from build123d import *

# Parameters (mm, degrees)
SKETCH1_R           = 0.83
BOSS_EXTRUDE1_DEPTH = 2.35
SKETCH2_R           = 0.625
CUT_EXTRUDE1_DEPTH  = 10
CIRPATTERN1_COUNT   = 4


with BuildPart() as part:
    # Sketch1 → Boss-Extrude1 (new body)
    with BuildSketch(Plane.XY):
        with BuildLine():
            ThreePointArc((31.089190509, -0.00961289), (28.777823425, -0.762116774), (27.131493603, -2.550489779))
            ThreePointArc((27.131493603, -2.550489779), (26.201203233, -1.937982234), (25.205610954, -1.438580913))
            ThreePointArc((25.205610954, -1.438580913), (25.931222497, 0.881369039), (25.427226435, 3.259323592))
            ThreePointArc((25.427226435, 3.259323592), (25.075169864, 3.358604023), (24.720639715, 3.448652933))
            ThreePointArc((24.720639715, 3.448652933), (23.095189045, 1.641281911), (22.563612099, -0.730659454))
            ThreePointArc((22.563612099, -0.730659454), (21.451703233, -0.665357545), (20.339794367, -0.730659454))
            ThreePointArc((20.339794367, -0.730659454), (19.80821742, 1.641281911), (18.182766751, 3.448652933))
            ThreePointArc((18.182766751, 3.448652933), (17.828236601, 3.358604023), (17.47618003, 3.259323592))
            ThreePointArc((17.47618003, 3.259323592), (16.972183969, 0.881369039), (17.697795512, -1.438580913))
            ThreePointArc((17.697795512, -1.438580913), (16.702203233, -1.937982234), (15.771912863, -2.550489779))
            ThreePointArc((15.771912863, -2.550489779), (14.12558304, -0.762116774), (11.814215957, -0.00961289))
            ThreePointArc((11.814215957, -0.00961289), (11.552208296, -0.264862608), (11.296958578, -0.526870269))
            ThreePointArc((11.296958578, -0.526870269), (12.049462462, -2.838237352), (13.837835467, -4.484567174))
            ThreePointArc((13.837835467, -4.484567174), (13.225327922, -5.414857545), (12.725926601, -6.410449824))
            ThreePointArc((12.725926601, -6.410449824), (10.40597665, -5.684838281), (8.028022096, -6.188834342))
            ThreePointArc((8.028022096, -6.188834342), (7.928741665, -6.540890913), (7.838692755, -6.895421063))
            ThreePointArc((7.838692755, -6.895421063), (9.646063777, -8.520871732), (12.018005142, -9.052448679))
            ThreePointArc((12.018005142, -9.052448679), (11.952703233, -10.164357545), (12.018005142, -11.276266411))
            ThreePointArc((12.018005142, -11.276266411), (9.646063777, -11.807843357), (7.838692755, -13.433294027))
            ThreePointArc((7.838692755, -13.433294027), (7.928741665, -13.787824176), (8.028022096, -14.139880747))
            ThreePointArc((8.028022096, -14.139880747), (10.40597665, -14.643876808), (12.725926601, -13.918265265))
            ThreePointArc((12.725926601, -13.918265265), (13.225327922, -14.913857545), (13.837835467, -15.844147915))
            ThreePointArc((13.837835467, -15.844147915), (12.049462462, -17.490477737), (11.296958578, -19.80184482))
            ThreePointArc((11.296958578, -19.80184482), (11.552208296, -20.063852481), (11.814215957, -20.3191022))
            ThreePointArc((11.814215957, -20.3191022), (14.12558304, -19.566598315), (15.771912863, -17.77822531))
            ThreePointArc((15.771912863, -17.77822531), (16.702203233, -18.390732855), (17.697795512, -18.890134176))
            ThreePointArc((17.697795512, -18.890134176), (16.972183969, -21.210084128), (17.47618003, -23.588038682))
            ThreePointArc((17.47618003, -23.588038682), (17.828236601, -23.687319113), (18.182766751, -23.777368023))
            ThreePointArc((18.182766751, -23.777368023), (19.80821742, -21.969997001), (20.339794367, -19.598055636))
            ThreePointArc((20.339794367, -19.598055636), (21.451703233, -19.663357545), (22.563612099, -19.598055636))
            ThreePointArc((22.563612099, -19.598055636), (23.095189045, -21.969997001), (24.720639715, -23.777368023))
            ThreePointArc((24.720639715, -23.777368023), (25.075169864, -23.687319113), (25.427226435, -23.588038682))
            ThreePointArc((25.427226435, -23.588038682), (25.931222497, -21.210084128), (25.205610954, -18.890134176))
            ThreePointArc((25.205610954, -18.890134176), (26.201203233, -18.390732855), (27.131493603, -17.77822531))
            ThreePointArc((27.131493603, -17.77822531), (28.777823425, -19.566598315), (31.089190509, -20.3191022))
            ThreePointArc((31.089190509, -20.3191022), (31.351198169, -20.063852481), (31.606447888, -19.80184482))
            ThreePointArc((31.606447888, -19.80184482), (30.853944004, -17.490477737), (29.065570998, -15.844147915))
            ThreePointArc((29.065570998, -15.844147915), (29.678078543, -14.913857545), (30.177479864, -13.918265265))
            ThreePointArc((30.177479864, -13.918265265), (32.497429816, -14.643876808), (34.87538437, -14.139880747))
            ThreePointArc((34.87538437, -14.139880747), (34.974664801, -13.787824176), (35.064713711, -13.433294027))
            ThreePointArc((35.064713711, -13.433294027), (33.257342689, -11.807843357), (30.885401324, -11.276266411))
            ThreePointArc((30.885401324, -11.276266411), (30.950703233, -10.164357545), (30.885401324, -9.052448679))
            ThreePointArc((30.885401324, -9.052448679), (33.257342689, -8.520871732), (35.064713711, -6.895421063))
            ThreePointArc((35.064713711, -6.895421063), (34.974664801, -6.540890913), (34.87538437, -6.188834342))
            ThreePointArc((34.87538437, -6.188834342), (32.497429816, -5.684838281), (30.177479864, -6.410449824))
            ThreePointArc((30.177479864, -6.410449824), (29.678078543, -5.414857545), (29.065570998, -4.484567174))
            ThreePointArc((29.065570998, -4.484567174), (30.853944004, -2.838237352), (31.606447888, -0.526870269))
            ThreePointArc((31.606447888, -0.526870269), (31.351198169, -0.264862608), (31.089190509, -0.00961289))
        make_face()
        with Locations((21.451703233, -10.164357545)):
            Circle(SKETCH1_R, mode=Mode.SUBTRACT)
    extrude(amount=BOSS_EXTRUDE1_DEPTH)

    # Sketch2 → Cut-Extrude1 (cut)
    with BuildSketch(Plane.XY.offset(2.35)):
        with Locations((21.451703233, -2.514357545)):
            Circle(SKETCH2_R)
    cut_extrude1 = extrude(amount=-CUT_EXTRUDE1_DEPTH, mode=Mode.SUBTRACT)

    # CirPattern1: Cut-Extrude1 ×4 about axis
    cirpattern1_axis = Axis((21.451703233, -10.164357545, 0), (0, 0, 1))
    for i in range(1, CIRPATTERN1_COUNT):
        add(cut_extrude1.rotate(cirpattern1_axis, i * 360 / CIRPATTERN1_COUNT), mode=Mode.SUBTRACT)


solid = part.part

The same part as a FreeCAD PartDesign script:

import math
import FreeCAD as App
import Part
import Sketcher

V = App.Vector
Q = App.Units.Quantity

doc = App.newDocument("Part")
body = doc.addObject("PartDesign::Body", "Body")

# Sketch on XY plane
sketch1 = doc.addObject("Sketcher::SketchObject", "Sketch")
body.addObject(sketch1)
sketch1.AttachmentSupport = (doc.XY_Plane, [""])
sketch1.MapMode = "FlatFace"
sketch1.addGeometry(Part.ArcOfCircle(Part.Circle(V(31.4, -4.8, 0), V(0, 0, 1), 4.8), math.radians(93), math.radians(152)), False)
sketch1.addGeometry(Part.ArcOfCircle(Part.Circle(V(21.5, -10.2, 0), V(0, 0, 1), 9.5), math.radians(53.28), math.radians(66.72)), False)
sketch1.addGeometry(Part.ArcOfCircle(Part.Circle(V(21.1, 1.1, 0), V(0, 0, 1), 4.8), math.radians(-32), math.radians(27)), False)
sketch1.addGeometry(Part.ArcOfCircle(Part.Circle(V(21.5, -10.2, 0), V(0, 0, 1), 14), math.radians(73.5), math.radians(76.5)), False)
sketch1.addGeometry(Part.ArcOfCircle(Part.Circle(V(27.4, -0.6, 0), V(0, 0, 1), 4.8), math.radians(123), math.radians(182)), False)
sketch1.addGeometry(Part.ArcOfCircle(Part.Circle(V(21.5, -10.2, 0), V(0, 0, 1), 9.5), math.radians(83.28), math.radians(96.72)), False)
sketch1.addGeometry(Part.ArcOfCircle(Part.Circle(V(15.5, -0.6, 0), V(0, 0, 1), 4.8), math.radians(-2), math.radians(57)), False)
sketch1.addGeometry(Part.ArcOfCircle(Part.Circle(V(21.5, -10.2, 0), V(0, 0, 1), 14), math.radians(103.5), math.radians(106.5)), False)
sketch1.addGeometry(Part.ArcOfCircle(Part.Circle(V(21.8, 1.1, 0), V(0, 0, 1), 4.8), math.radians(153), math.radians(212)), False)
sketch1.addGeometry(Part.ArcOfCircle(Part.Circle(V(21.5, -10.2, 0), V(0, 0, 1), 9.5), math.radians(113.28), math.radians(126.72)), False)
sketch1.addGeometry(Part.ArcOfCircle(Part.Circle(V(11.5, -4.8, 0), V(0, 0, 1), 4.8), math.radians(28), math.radians(87)), False)
sketch1.addGeometry(Part.ArcOfCircle(Part.Circle(V(21.5, -10.2, 0), V(0, 0, 1), 14), math.radians(133.5), math.radians(136.5)), False)
sketch1.addGeometry(Part.ArcOfCircle(Part.Circle(V(16.1, -0.2, 0), V(0, 0, 1), 4.8), math.radians(-177), math.radians(-118)), False)
sketch1.addGeometry(Part.ArcOfCircle(Part.Circle(V(21.5, -10.2, 0), V(0, 0, 1), 9.5), math.radians(143.28), math.radians(156.72)), False)
sketch1.addGeometry(Part.ArcOfCircle(Part.Circle(V(10.2, -10.5, 0), V(0, 0, 1), 4.8), math.radians(58), math.radians(117)), False)
sketch1.addGeometry(Part.ArcOfCircle(Part.Circle(V(21.5, -10.2, 0), V(0, 0, 1), 14), math.radians(163.5), math.radians(166.5)), False)
sketch1.addGeometry(Part.ArcOfCircle(Part.Circle(V(11.8, -4.3, 0), V(0, 0, 1), 4.8), math.radians(-147), math.radians(-88)), False)
sketch1.addGeometry(Part.ArcOfCircle(Part.Circle(V(21.5, -10.2, 0), V(0, 0, 1), 9.5), math.radians(173.28), math.radians(186.72)), False)
sketch1.addGeometry(Part.ArcOfCircle(Part.Circle(V(11.8, -16.1, 0), V(0, 0, 1), 4.8), math.radians(88), math.radians(147)), False)
sketch1.addGeometry(Part.ArcOfCircle(Part.Circle(V(21.5, -10.2, 0), V(0, 0, 1), 14), math.radians(-166.5), math.radians(-163.5)), False)
sketch1.addGeometry(Part.ArcOfCircle(Part.Circle(V(10.2, -9.8, 0), V(0, 0, 1), 4.8), math.radians(-117), math.radians(-58)), False)
sketch1.addGeometry(Part.ArcOfCircle(Part.Circle(V(21.5, -10.2, 0), V(0, 0, 1), 9.5), math.radians(-156.72), math.radians(-143.28)), False)
sketch1.addGeometry(Part.ArcOfCircle(Part.Circle(V(16.1, -20.1, 0), V(0, 0, 1), 4.8), math.radians(118), math.radians(177)), False)
sketch1.addGeometry(Part.ArcOfCircle(Part.Circle(V(21.5, -10.2, 0), V(0, 0, 1), 14), math.radians(-136.5), math.radians(-133.5)), False)
sketch1.addGeometry(Part.ArcOfCircle(Part.Circle(V(11.5, -15.5, 0), V(0, 0, 1), 4.8), math.radians(-87), math.radians(-28)), False)
sketch1.addGeometry(Part.ArcOfCircle(Part.Circle(V(21.5, -10.2, 0), V(0, 0, 1), 9.5), math.radians(-126.72), math.radians(-113.28)), False)
sketch1.addGeometry(Part.ArcOfCircle(Part.Circle(V(21.8, -21.4, 0), V(0, 0, 1), 4.8), math.radians(148), math.radians(207)), False)
sketch1.addGeometry(Part.ArcOfCircle(Part.Circle(V(21.5, -10.2, 0), V(0, 0, 1), 14), math.radians(-106.5), math.radians(-103.5)), False)
sketch1.addGeometry(Part.ArcOfCircle(Part.Circle(V(15.5, -19.8, 0), V(0, 0, 1), 4.8), math.radians(-57), math.radians(2)), False)
sketch1.addGeometry(Part.ArcOfCircle(Part.Circle(V(21.5, -10.2, 0), V(0, 0, 1), 9.5), math.radians(-96.72), math.radians(-83.28)), False)
sketch1.addGeometry(Part.ArcOfCircle(Part.Circle(V(27.4, -19.8, 0), V(0, 0, 1), 4.8), math.radians(178), math.radians(237)), False)
sketch1.addGeometry(Part.ArcOfCircle(Part.Circle(V(21.5, -10.2, 0), V(0, 0, 1), 14), math.radians(-76.5), math.radians(-73.5)), False)
sketch1.addGeometry(Part.ArcOfCircle(Part.Circle(V(21.1, -21.4, 0), V(0, 0, 1), 4.8), math.radians(-27), math.radians(32)), False)
sketch1.addGeometry(Part.ArcOfCircle(Part.Circle(V(21.5, -10.2, 0), V(0, 0, 1), 9.5), math.radians(-66.72), math.radians(-53.28)), False)
sketch1.addGeometry(Part.ArcOfCircle(Part.Circle(V(31.4, -15.5, 0), V(0, 0, 1), 4.8), math.radians(-152), math.radians(-93)), False)
sketch1.addGeometry(Part.ArcOfCircle(Part.Circle(V(21.5, -10.2, 0), V(0, 0, 1), 14), math.radians(-46.5), math.radians(-43.5)), False)
sketch1.addGeometry(Part.ArcOfCircle(Part.Circle(V(26.8, -20.1, 0), V(0, 0, 1), 4.8), math.radians(3), math.radians(62)), False)
sketch1.addGeometry(Part.ArcOfCircle(Part.Circle(V(21.5, -10.2, 0), V(0, 0, 1), 9.5), math.radians(-36.72), math.radians(-23.28)), False)
sketch1.addGeometry(Part.ArcOfCircle(Part.Circle(V(32.7, -9.8, 0), V(0, 0, 1), 4.8), math.radians(-122), math.radians(-63)), False)
sketch1.addGeometry(Part.ArcOfCircle(Part.Circle(V(21.5, -10.2, 0), V(0, 0, 1), 14), math.radians(-16.5), math.radians(-13.5)), False)
sketch1.addGeometry(Part.ArcOfCircle(Part.Circle(V(31.1, -16.1, 0), V(0, 0, 1), 4.8), math.radians(33), math.radians(92)), False)
sketch1.addGeometry(Part.ArcOfCircle(Part.Circle(V(21.5, -10.2, 0), V(0, 0, 1), 9.5), math.radians(-6.72), math.radians(6.72)), False)
sketch1.addGeometry(Part.ArcOfCircle(Part.Circle(V(31.1, -4.3, 0), V(0, 0, 1), 4.8), math.radians(-92), math.radians(-33)), False)
sketch1.addGeometry(Part.ArcOfCircle(Part.Circle(V(21.5, -10.2, 0), V(0, 0, 1), 14), math.radians(13.5), math.radians(16.5)), False)
sketch1.addGeometry(Part.ArcOfCircle(Part.Circle(V(32.7, -10.5, 0), V(0, 0, 1), 4.8), math.radians(63), math.radians(122)), False)
sketch1.addGeometry(Part.ArcOfCircle(Part.Circle(V(21.5, -10.2, 0), V(0, 0, 1), 9.5), math.radians(23.28), math.radians(36.72)), False)
sketch1.addGeometry(Part.ArcOfCircle(Part.Circle(V(26.8, -0.2, 0), V(0, 0, 1), 4.8), math.radians(-62), math.radians(-3)), False)
sketch1.addGeometry(Part.ArcOfCircle(Part.Circle(V(21.5, -10.2, 0), V(0, 0, 1), 14), math.radians(43.5), math.radians(46.5)), False)
sketch1.addGeometry(Part.Circle(V(21.5, -10.2, 0), V(0, 0, 1), 0.8), False)
sketch1.addConstraint(Sketcher.Constraint("Coincident", 0, 2, 1, 1))
sketch1.addConstraint(Sketcher.Constraint("Coincident", 1, 2, 2, 1))
sketch1.addConstraint(Sketcher.Constraint("Coincident", 2, 2, 3, 1))
sketch1.addConstraint(Sketcher.Constraint("Coincident", 3, 2, 4, 1))
sketch1.addConstraint(Sketcher.Constraint("Coincident", 4, 2, 5, 1))
sketch1.addConstraint(Sketcher.Constraint("Coincident", 5, 2, 6, 1))
sketch1.addConstraint(Sketcher.Constraint("Coincident", 6, 2, 7, 1))
sketch1.addConstraint(Sketcher.Constraint("Coincident", 7, 2, 8, 1))
sketch1.addConstraint(Sketcher.Constraint("Coincident", 8, 2, 9, 1))
sketch1.addConstraint(Sketcher.Constraint("Coincident", 9, 2, 10, 1))
sketch1.addConstraint(Sketcher.Constraint("Coincident", 10, 2, 11, 1))
sketch1.addConstraint(Sketcher.Constraint("Coincident", 11, 2, 12, 1))
sketch1.addConstraint(Sketcher.Constraint("Coincident", 12, 2, 13, 1))
sketch1.addConstraint(Sketcher.Constraint("Coincident", 13, 2, 14, 1))
sketch1.addConstraint(Sketcher.Constraint("Coincident", 14, 2, 15, 1))
sketch1.addConstraint(Sketcher.Constraint("Coincident", 15, 2, 16, 1))
sketch1.addConstraint(Sketcher.Constraint("Coincident", 16, 2, 17, 1))
sketch1.addConstraint(Sketcher.Constraint("Coincident", 17, 2, 18, 1))
sketch1.addConstraint(Sketcher.Constraint("Coincident", 18, 2, 19, 1))
sketch1.addConstraint(Sketcher.Constraint("Coincident", 19, 2, 20, 1))
sketch1.addConstraint(Sketcher.Constraint("Coincident", 20, 2, 21, 1))
sketch1.addConstraint(Sketcher.Constraint("Coincident", 21, 2, 22, 1))
sketch1.addConstraint(Sketcher.Constraint("Coincident", 22, 2, 23, 1))
sketch1.addConstraint(Sketcher.Constraint("Coincident", 23, 2, 24, 1))
sketch1.addConstraint(Sketcher.Constraint("Coincident", 24, 2, 25, 1))
sketch1.addConstraint(Sketcher.Constraint("Coincident", 25, 2, 26, 1))
sketch1.addConstraint(Sketcher.Constraint("Coincident", 26, 2, 27, 1))
sketch1.addConstraint(Sketcher.Constraint("Coincident", 27, 2, 28, 1))
sketch1.addConstraint(Sketcher.Constraint("Coincident", 28, 2, 29, 1))
sketch1.addConstraint(Sketcher.Constraint("Coincident", 29, 2, 30, 1))
sketch1.addConstraint(Sketcher.Constraint("Coincident", 30, 2, 31, 1))
sketch1.addConstraint(Sketcher.Constraint("Coincident", 31, 2, 32, 1))
sketch1.addConstraint(Sketcher.Constraint("Coincident", 32, 2, 33, 1))
sketch1.addConstraint(Sketcher.Constraint("Coincident", 33, 2, 34, 1))
sketch1.addConstraint(Sketcher.Constraint("Coincident", 34, 2, 35, 1))
sketch1.addConstraint(Sketcher.Constraint("Coincident", 35, 2, 36, 1))
sketch1.addConstraint(Sketcher.Constraint("Coincident", 36, 2, 37, 1))
sketch1.addConstraint(Sketcher.Constraint("Coincident", 37, 2, 38, 1))
sketch1.addConstraint(Sketcher.Constraint("Coincident", 38, 2, 39, 1))
sketch1.addConstraint(Sketcher.Constraint("Coincident", 39, 2, 40, 1))
sketch1.addConstraint(Sketcher.Constraint("Coincident", 40, 2, 41, 1))
sketch1.addConstraint(Sketcher.Constraint("Coincident", 41, 2, 42, 1))
sketch1.addConstraint(Sketcher.Constraint("Coincident", 42, 2, 43, 1))
sketch1.addConstraint(Sketcher.Constraint("Coincident", 43, 2, 44, 1))
sketch1.addConstraint(Sketcher.Constraint("Coincident", 44, 2, 45, 1))
sketch1.addConstraint(Sketcher.Constraint("Coincident", 45, 2, 46, 1))
sketch1.addConstraint(Sketcher.Constraint("Coincident", 46, 2, 47, 1))
sketch1.addConstraint(Sketcher.Constraint("Coincident", 47, 2, 0, 1))
sketch1.addConstraint(Sketcher.Constraint("Coincident", 3, 3, 1, 3))
sketch1.addConstraint(Sketcher.Constraint("Coincident", 5, 3, 1, 3))
sketch1.addConstraint(Sketcher.Constraint("Coincident", 7, 3, 1, 3))
sketch1.addConstraint(Sketcher.Constraint("Coincident", 9, 3, 1, 3))
sketch1.addConstraint(Sketcher.Constraint("Coincident", 11, 3, 1, 3))
sketch1.addConstraint(Sketcher.Constraint("Coincident", 13, 3, 1, 3))
sketch1.addConstraint(Sketcher.Constraint("Coincident", 15, 3, 1, 3))
sketch1.addConstraint(Sketcher.Constraint("Coincident", 17, 3, 1, 3))
sketch1.addConstraint(Sketcher.Constraint("Coincident", 19, 3, 1, 3))
sketch1.addConstraint(Sketcher.Constraint("Coincident", 21, 3, 1, 3))
sketch1.addConstraint(Sketcher.Constraint("Coincident", 23, 3, 1, 3))
sketch1.addConstraint(Sketcher.Constraint("Coincident", 25, 3, 1, 3))
sketch1.addConstraint(Sketcher.Constraint("Coincident", 27, 3, 1, 3))
sketch1.addConstraint(Sketcher.Constraint("Coincident", 29, 3, 1, 3))
sketch1.addConstraint(Sketcher.Constraint("Coincident", 31, 3, 1, 3))
sketch1.addConstraint(Sketcher.Constraint("Coincident", 33, 3, 1, 3))
sketch1.addConstraint(Sketcher.Constraint("Coincident", 35, 3, 1, 3))
sketch1.addConstraint(Sketcher.Constraint("Coincident", 37, 3, 1, 3))
sketch1.addConstraint(Sketcher.Constraint("Coincident", 39, 3, 1, 3))
sketch1.addConstraint(Sketcher.Constraint("Coincident", 41, 3, 1, 3))
sketch1.addConstraint(Sketcher.Constraint("Coincident", 43, 3, 1, 3))
sketch1.addConstraint(Sketcher.Constraint("Coincident", 45, 3, 1, 3))
sketch1.addConstraint(Sketcher.Constraint("Coincident", 47, 3, 1, 3))
sketch1.addConstraint(Sketcher.Constraint("Coincident", 48, 3, 1, 3))
sketch1.addConstraint(Sketcher.Constraint("Equal", 0, 2))
sketch1.addConstraint(Sketcher.Constraint("Equal", 2, 4))
sketch1.addConstraint(Sketcher.Constraint("Equal", 1, 5))
sketch1.addConstraint(Sketcher.Constraint("Equal", 4, 6))
sketch1.addConstraint(Sketcher.Constraint("Equal", 3, 7))
sketch1.addConstraint(Sketcher.Constraint("Equal", 6, 8))
sketch1.addConstraint(Sketcher.Constraint("Equal", 5, 9))
sketch1.addConstraint(Sketcher.Constraint("Equal", 8, 10))
sketch1.addConstraint(Sketcher.Constraint("Equal", 7, 11))
sketch1.addConstraint(Sketcher.Constraint("Equal", 10, 12))
sketch1.addConstraint(Sketcher.Constraint("Equal", 9, 13))
sketch1.addConstraint(Sketcher.Constraint("Equal", 12, 14))
sketch1.addConstraint(Sketcher.Constraint("Equal", 11, 15))
sketch1.addConstraint(Sketcher.Constraint("Equal", 14, 16))
sketch1.addConstraint(Sketcher.Constraint("Equal", 13, 17))
sketch1.addConstraint(Sketcher.Constraint("Equal", 16, 18))
sketch1.addConstraint(Sketcher.Constraint("Equal", 15, 19))
sketch1.addConstraint(Sketcher.Constraint("Equal", 18, 20))
sketch1.addConstraint(Sketcher.Constraint("Equal", 17, 21))
sketch1.addConstraint(Sketcher.Constraint("Equal", 20, 22))
sketch1.addConstraint(Sketcher.Constraint("Equal", 19, 23))
sketch1.addConstraint(Sketcher.Constraint("Equal", 22, 24))
sketch1.addConstraint(Sketcher.Constraint("Equal", 21, 25))
sketch1.addConstraint(Sketcher.Constraint("Equal", 24, 26))
sketch1.addConstraint(Sketcher.Constraint("Equal", 23, 27))
sketch1.addConstraint(Sketcher.Constraint("Equal", 26, 28))
sketch1.addConstraint(Sketcher.Constraint("Equal", 25, 29))
sketch1.addConstraint(Sketcher.Constraint("Equal", 28, 30))
sketch1.addConstraint(Sketcher.Constraint("Equal", 27, 31))
sketch1.addConstraint(Sketcher.Constraint("Equal", 30, 32))
sketch1.addConstraint(Sketcher.Constraint("Equal", 29, 33))
sketch1.addConstraint(Sketcher.Constraint("Equal", 32, 34))
sketch1.addConstraint(Sketcher.Constraint("Equal", 31, 35))
sketch1.addConstraint(Sketcher.Constraint("Equal", 34, 36))
sketch1.addConstraint(Sketcher.Constraint("Equal", 33, 37))
sketch1.addConstraint(Sketcher.Constraint("Equal", 36, 38))
sketch1.addConstraint(Sketcher.Constraint("Equal", 35, 39))
sketch1.addConstraint(Sketcher.Constraint("Equal", 38, 40))
sketch1.addConstraint(Sketcher.Constraint("Equal", 37, 41))
sketch1.addConstraint(Sketcher.Constraint("Equal", 40, 42))
sketch1.addConstraint(Sketcher.Constraint("Equal", 39, 43))
sketch1.addConstraint(Sketcher.Constraint("Equal", 42, 44))
sketch1.addConstraint(Sketcher.Constraint("Equal", 41, 45))
sketch1.addConstraint(Sketcher.Constraint("Equal", 44, 46))
sketch1.addConstraint(Sketcher.Constraint("Equal", 43, 47))
sketch1.addConstraint(Sketcher.Constraint("Horizontal", 4, 3, 6, 3))
sketch1.addConstraint(Sketcher.Constraint("Horizontal", 2, 3, 8, 3))
sketch1.addConstraint(Sketcher.Constraint("Horizontal", 0, 3, 10, 3))
sketch1.addConstraint(Sketcher.Constraint("Horizontal", 28, 3, 30, 3))
sketch1.addConstraint(Sketcher.Constraint("Horizontal", 26, 3, 32, 3))
sketch1.addConstraint(Sketcher.Constraint("Horizontal", 24, 3, 34, 3))
sketch1.addConstraint(Sketcher.Constraint("Horizontal", 22, 3, 36, 3))
sketch1.addConstraint(Sketcher.Constraint("Horizontal", 20, 3, 38, 3))
sketch1.addConstraint(Sketcher.Constraint("Horizontal", 18, 3, 40, 3))
sketch1.addConstraint(Sketcher.Constraint("Horizontal", 16, 3, 42, 3))
sketch1.addConstraint(Sketcher.Constraint("Horizontal", 14, 3, 44, 3))
sketch1.addConstraint(Sketcher.Constraint("Horizontal", 12, 3, 46, 3))
sketch1.addConstraint(Sketcher.Constraint("Horizontal", 4, 2, 5, 2))
sketch1.addConstraint(Sketcher.Constraint("Horizontal", 2, 2, 7, 2))
sketch1.addConstraint(Sketcher.Constraint("Horizontal", 0, 2, 9, 2))
sketch1.addConstraint(Sketcher.Constraint("Horizontal", 28, 2, 29, 2))
sketch1.addConstraint(Sketcher.Constraint("Horizontal", 26, 2, 31, 2))
sketch1.addConstraint(Sketcher.Constraint("Horizontal", 24, 2, 33, 2))
sketch1.addConstraint(Sketcher.Constraint("Horizontal", 22, 2, 35, 2))
sketch1.addConstraint(Sketcher.Constraint("Horizontal", 20, 2, 37, 2))
sketch1.addConstraint(Sketcher.Constraint("Horizontal", 18, 2, 39, 2))
sketch1.addConstraint(Sketcher.Constraint("Horizontal", 16, 2, 41, 2))
sketch1.addConstraint(Sketcher.Constraint("Horizontal", 14, 2, 43, 2))
sketch1.addConstraint(Sketcher.Constraint("Horizontal", 12, 2, 45, 2))
sketch1.addConstraint(Sketcher.Constraint("Vertical", 16, 3, 18, 3))
sketch1.addConstraint(Sketcher.Constraint("Vertical", 14, 3, 20, 3))
sketch1.addConstraint(Sketcher.Constraint("Vertical", 12, 3, 22, 3))
sketch1.addConstraint(Sketcher.Constraint("Vertical", 10, 3, 24, 3))
sketch1.addConstraint(Sketcher.Constraint("Vertical", 8, 3, 26, 3))
sketch1.addConstraint(Sketcher.Constraint("Vertical", 6, 3, 28, 3))
sketch1.addConstraint(Sketcher.Constraint("Vertical", 16, 2, 17, 2))
sketch1.addConstraint(Sketcher.Constraint("Vertical", 14, 2, 19, 2))
sketch1.addConstraint(Sketcher.Constraint("Vertical", 12, 2, 21, 2))
sketch1.addConstraint(Sketcher.Constraint("Vertical", 10, 2, 23, 2))
sketch1.addConstraint(Sketcher.Constraint("Vertical", 8, 2, 25, 2))
sketch1.addConstraint(Sketcher.Constraint("Vertical", 6, 2, 27, 2))
sketch1.addConstraint(Sketcher.Constraint("Radius", 3, Q("14 mm")))
sketch1.addConstraint(Sketcher.Constraint("Radius", 0, Q("4.8 mm")))
sketch1.addConstraint(Sketcher.Constraint("Diameter", 48, Q("1.66 mm")))
sketch1.addConstraint(Sketcher.Constraint("Radius", 1, Q("9.499 mm")))
sketch1.addConstraint(Sketcher.Constraint("DistanceX", -1, 1, 35, 3, Q("21.451702 mm")))
sketch1.addConstraint(Sketcher.Constraint("DistanceX", -1, 1, 40, 2, Q("30.885401 mm")))
sketch1.addConstraint(Sketcher.Constraint("DistanceY", 0, 3, -1, 1, Q("4.801331 mm")))
sketch1.addConstraint(Sketcher.Constraint("DistanceY", -1, 1, 2, 3, Q("1.107549 mm")))
sketch1.addConstraint(Sketcher.Constraint("DistanceX", -1, 1, 10, 3, Q("11.532371 mm")))
sketch1.addConstraint(Sketcher.Constraint("DistanceX", -1, 1, 16, 3, Q("11.84752 mm")))
sketch1.addConstraint(Sketcher.Constraint("DistanceY", 20, 3, -1, 1, Q("9.849209 mm")))
sketch1.addConstraint(Sketcher.Constraint("DistanceY", 22, 3, -1, 1, Q("20.08369 mm")))
sketch1.addConstraint(Sketcher.Constraint("DistanceY", 28, 3, -1, 1, Q("19.768541 mm")))
sketch1.addConstraint(Sketcher.Constraint("DistanceX", -1, 1, 36, 3, Q("26.81473 mm")))
sketch1.addConstraint(Sketcher.Constraint("DistanceX", -1, 1, 38, 3, Q("32.72361 mm")))
sketch1.addConstraint(Sketcher.Constraint("DistanceY", 47, 3, -1, 1, Q("10.164358 mm")))
sketch1.addConstraint(Sketcher.Constraint("DistanceX", -1, 1, 1, 2, Q("25.205611 mm")))
sketch1.addConstraint(Sketcher.Constraint("DistanceX", -1, 1, 3, 2, Q("24.72064 mm")))
pad1 = doc.addObject("PartDesign::Pad", "Pad")
body.addObject(pad1)
pad1.Profile = sketch1
pad1.Length = 2.35

# Sketch on XY plane
sketch2 = doc.addObject("Sketcher::SketchObject", "Sketch001")
body.addObject(sketch2)
sketch2.AttachmentSupport = (doc.XY_Plane, [""])
sketch2.MapMode = "FlatFace"
sketch2.AttachmentOffset = App.Placement(V(0, 0, 2.35), App.Rotation())
sketch2.addGeometry(Part.Circle(V(21.5, -2.5, 0), V(0, 0, 1), 0.6), False)
sketch2.addConstraint(Sketcher.Constraint("Diameter", 0, Q("1.25 mm")))
sketch2.addConstraint(Sketcher.Constraint("DistanceX", -1, 1, 0, 3, Q("21.451703 mm")))
sketch2.addConstraint(Sketcher.Constraint("DistanceY", 0, 3, -1, 1, Q("2.514358 mm")))
pocket1 = doc.addObject("PartDesign::Pocket", "Pocket")
body.addObject(pocket1)
pocket1.Profile = sketch2
pocket1.Length = 10
doc.recompute()

datumline = doc.addObject("PartDesign::Line", "DatumLine")
body.addObject(datumline)
datumline.Placement = App.Placement(V(21.451703, -10.164358, 0), App.Rotation(V(0, 0, 1), V(0, 0, 1)))
polarpattern = doc.addObject("PartDesign::PolarPattern", "PolarPattern")
body.addObject(polarpattern)
polarpattern.Originals = [pocket1]
polarpattern.Axis = (datumline, [""])
polarpattern.Angle = 360
polarpattern.Occurrences = 4
body.Tip = polarpattern

doc.recompute()
